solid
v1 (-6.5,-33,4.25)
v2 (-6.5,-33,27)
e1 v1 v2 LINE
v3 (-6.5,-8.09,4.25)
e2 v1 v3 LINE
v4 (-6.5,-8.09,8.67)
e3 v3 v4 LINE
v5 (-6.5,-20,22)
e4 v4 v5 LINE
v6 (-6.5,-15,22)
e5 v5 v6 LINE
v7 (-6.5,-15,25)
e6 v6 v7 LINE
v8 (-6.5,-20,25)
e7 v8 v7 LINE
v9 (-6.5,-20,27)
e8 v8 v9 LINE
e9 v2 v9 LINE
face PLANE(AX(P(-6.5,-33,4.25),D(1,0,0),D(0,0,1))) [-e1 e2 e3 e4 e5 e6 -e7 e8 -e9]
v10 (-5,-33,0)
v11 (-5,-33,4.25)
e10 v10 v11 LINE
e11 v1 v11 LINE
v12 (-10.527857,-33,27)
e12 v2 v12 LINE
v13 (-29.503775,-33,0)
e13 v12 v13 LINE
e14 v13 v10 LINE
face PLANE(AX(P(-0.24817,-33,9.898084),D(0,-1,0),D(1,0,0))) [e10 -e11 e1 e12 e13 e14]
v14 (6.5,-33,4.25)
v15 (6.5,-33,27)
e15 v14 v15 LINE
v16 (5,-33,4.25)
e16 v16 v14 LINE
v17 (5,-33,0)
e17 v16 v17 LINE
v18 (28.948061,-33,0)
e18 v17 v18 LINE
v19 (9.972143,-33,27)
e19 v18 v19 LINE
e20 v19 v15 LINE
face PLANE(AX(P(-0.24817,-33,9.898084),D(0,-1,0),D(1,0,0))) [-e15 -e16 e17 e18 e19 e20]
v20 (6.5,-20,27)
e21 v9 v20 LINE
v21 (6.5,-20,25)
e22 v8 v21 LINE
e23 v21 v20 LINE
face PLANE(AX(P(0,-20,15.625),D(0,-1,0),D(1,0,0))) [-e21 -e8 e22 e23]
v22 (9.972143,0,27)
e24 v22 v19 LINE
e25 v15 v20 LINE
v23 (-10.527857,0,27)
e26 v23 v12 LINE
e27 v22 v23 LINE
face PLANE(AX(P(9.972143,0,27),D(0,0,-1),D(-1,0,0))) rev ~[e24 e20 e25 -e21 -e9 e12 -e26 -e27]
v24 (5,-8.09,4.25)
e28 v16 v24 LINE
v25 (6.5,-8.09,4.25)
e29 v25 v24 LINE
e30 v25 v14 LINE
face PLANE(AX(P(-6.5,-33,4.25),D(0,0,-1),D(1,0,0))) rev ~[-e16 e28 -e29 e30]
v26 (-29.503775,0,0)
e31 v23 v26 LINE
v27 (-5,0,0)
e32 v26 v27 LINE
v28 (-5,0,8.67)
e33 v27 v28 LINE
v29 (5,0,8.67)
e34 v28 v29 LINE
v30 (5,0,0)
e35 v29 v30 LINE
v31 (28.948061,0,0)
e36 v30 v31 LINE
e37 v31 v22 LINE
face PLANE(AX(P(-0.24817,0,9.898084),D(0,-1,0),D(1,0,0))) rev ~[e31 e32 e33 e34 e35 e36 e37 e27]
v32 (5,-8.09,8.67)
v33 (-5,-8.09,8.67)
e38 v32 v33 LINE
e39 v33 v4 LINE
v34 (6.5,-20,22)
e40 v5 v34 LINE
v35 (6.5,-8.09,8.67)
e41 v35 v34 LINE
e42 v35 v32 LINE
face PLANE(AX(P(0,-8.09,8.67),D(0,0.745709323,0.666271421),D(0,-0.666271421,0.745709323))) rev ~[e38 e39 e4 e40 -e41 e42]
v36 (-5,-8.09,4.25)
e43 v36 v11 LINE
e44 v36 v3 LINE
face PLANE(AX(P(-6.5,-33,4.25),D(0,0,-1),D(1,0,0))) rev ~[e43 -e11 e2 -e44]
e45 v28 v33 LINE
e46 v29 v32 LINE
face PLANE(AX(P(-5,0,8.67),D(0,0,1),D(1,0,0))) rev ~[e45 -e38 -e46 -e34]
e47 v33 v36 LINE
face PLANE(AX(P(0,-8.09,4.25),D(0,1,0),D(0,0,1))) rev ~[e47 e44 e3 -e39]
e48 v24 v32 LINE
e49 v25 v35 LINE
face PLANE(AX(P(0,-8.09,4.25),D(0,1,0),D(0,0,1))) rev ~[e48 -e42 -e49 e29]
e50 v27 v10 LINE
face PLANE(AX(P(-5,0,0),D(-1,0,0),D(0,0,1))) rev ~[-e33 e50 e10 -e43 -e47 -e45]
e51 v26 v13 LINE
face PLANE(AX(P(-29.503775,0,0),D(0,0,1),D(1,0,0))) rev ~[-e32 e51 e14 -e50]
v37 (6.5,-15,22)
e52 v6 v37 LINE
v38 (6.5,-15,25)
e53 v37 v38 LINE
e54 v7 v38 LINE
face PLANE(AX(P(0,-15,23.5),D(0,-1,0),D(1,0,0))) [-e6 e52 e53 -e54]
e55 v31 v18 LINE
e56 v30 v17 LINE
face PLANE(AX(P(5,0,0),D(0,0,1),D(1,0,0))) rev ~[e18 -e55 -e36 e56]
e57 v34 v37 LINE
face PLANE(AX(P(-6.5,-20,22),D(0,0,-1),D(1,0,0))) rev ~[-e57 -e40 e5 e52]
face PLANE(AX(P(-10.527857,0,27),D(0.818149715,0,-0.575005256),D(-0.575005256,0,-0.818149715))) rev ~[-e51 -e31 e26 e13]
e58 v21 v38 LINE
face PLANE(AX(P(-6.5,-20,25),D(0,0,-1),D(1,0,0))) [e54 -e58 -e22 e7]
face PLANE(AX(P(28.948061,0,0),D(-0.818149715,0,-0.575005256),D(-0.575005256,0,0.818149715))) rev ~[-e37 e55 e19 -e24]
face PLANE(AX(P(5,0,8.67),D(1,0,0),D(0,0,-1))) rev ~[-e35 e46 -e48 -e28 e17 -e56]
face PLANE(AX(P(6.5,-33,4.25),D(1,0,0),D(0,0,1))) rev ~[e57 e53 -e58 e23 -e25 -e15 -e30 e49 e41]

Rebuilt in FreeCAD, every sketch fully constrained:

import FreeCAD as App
import Part
import Sketcher
Q = App.Units.Quantity

doc = App.newDocument("Part")
params = doc.addObject("Spreadsheet::Sheet", "Params")
for row, (alias, value) in enumerate([
    ("sketch1_width", "10 mm"),
    ("sketch1_width2", "20.5 mm"),
    ("sketch1_height", "8.67 mm"),
    ("pad1_length", "33 mm"),
    ("sketch2_width", "13 mm"),
    ("sketch2_height", "22.75 mm"),
    ("pocket1_length", "13 mm"),
    ("sketch3_width", "13 mm"),
    ("sketch3_height", "3 mm"),
    ("pocket2_length", "5 mm"),
    ("sketch4_width", "11.91 mm"),
    ("sketch4_height", "17.75 mm"),
    ("sketch4_height2", "4.42 mm"),
    ("pocket3_length", "13 mm"),
], start=1):
    params.set(f"A{row}", alias)
    params.set(f"B{row}", "=" + value)
    params.setAlias(f"B{row}", alias)

body = doc.addObject("PartDesign::Body", "Body")

sketch1 = doc.addObject("Sketcher::SketchObject", "Sketch")
body.addObject(sketch1)
sketch1.AttachmentSupport = (doc.XZ_Plane, [""])
sketch1.MapMode = "FlatFace"
sketch1.addGeometry([
    Part.LineSegment(App.Vector(-11, 27, 0), App.Vector(-30, 0, 0)),
    Part.LineSegment(App.Vector(-30, 0, 0), App.Vector(-5, 0, 0)),
    Part.LineSegment(App.Vector(-5, 0, 0), App.Vector(-5, 9, 0)),
    Part.LineSegment(App.Vector(-5, 9, 0), App.Vector(5, 9, 0)),
    Part.LineSegment(App.Vector(5, 9, 0), App.Vector(5, 0, 0)),
    Part.LineSegment(App.Vector(5, 0, 0), App.Vector(29, 0, 0)),
    Part.LineSegment(App.Vector(29, 0, 0), App.Vector(10, 27, 0)),
    Part.LineSegment(App.Vector(10, 27, 0), App.Vector(-11, 27, 0)),
], False)
sketch1.addConstraint([
    Sketcher.Constraint("Coincident", 0, 2, 1, 1),
    Sketcher.Constraint("Coincident", 1, 2, 2, 1),
    Sketcher.Constraint("Coincident", 2, 2, 3, 1),
    Sketcher.Constraint("Coincident", 3, 2, 4, 1),
    Sketcher.Constraint("Coincident", 4, 2, 5, 1),
    Sketcher.Constraint("Coincident", 5, 2, 6, 1),
    Sketcher.Constraint("Coincident", 6, 2, 7, 1),
    Sketcher.Constraint("Coincident", 7, 2, 0, 1),
    Sketcher.Constraint("Horizontal", 1),
    Sketcher.Constraint("Vertical", 2),
    Sketcher.Constraint("Horizontal", 3),
    Sketcher.Constraint("Vertical", 4),
    Sketcher.Constraint("Horizontal", 5),
    Sketcher.Constraint("Horizontal", 7),
    Sketcher.Constraint("Symmetric", 1, 2, 4, 2, -1, 1),
    Sketcher.Constraint("PointOnObject", 0, 2, -1),
    Sketcher.Constraint("Equal", 0, 6),
    Sketcher.Constraint("DistanceX", 3, 1, 3, 2, 10.0),
    Sketcher.Constraint("DistanceX", 7, 2, 7, 1, 20.5),
    Sketcher.Constraint("DistanceY", -1, 1, 6, 2, 27.0),
    Sketcher.Constraint("Angle", 0, Q("-125.1 deg")),
    Sketcher.Constraint("DistanceY", 2, 1, 2, 2, 8.67),
    Sketcher.Constraint("DistanceX", 5, 1, 5, 2, 23.948061),
])
sketch1.setExpression("Constraints[17]", "Params.sketch1_width")
sketch1.setExpression("Constraints[18]", "Params.sketch1_width2")
sketch1.setExpression("Constraints[21]", "Params.sketch1_height")
pad1 = doc.addObject("PartDesign::Pad", "Pad")
body.addObject(pad1)
pad1.Profile = sketch1
pad1.setExpression("Length", "Params.pad1_length")

sketch2 = doc.addObject("Sketcher::SketchObject", "Sketch001")
body.addObject(sketch2)
sketch2.AttachmentSupport = (doc.XZ_Plane, [""])
sketch2.MapMode = "FlatFace"
sketch2.AttachmentOffset = App.Placement(App.Vector(0, 0, 33), App.Rotation())
sketch2.addGeometry([
    Part.LineSegment(App.Vector(-6, 27, 0), App.Vector(-6, 4, 0)),
    Part.LineSegment(App.Vector(-6, 4, 0), App.Vector(6, 4, 0)),
    Part.LineSegment(App.Vector(6, 4, 0), App.Vector(6, 27, 0)),
    Part.LineSegment(App.Vector(6, 27, 0), App.Vector(-6, 27, 0)),
], False)
sketch2.addConstraint([
    Sketcher.Constraint("Coincident", 0, 2, 1, 1),
    Sketcher.Constraint("Coincident", 1, 2, 2, 1),
    Sketcher.Constraint("Coincident", 2, 2, 3, 1),
    Sketcher.Constraint("Coincident", 3, 2, 0, 1),
    Sketcher.Constraint("Vertical", 0),
    Sketcher.Constraint("Horizontal", 1),
    Sketcher.Constraint("Vertical", 2),
    Sketcher.Constraint("Horizontal", 3),
    Sketcher.Constraint("DistanceX", 1, 1, 1, 2, 13.0),
    Sketcher.Constraint("DistanceY", -1, 1, 2, 2, 27.0),
    Sketcher.Constraint("DistanceY", 0, 2, 0, 1, 22.75),
    Sketcher.Constraint("DistanceX", 0, 2, -1, 1, 6.5),
])
sketch2.setExpression("Constraints[8]", "Params.sketch2_width")
sketch2.setExpression("Constraints[10]", "Params.sketch2_height")
pocket1 = doc.addObject("PartDesign::Pocket", "Pocket")
body.addObject(pocket1)
pocket1.Profile = sketch2
pocket1.setExpression("Length", "Params.pocket1_length")

sketch3 = doc.addObject("Sketcher::SketchObject", "Sketch002")
body.addObject(sketch3)
sketch3.AttachmentSupport = (doc.XZ_Plane, [""])
sketch3.MapMode = "FlatFace"
sketch3.AttachmentOffset = App.Placement(App.Vector(0, 0, 20), App.Rotation())
sketch3.addGeometry([
    Part.LineSegment(App.Vector(-6.5, 25, 0), App.Vector(-6.5, 22, 0)),
    Part.LineSegment(App.Vector(-6.5, 22, 0), App.Vector(6.5, 22, 0)),
    Part.LineSegment(App.Vector(6.5, 22, 0), App.Vector(6.5, 25, 0)),
    Part.LineSegment(App.Vector(6.5, 25, 0), App.Vector(-6.5, 25, 0)),
], False)
sketch3.addConstraint([
    Sketcher.Constraint("Coincident", 0, 2, 1, 1),
    Sketcher.Constraint("Coincident", 1, 2, 2, 1),
    Sketcher.Constraint("Coincident", 2, 2, 3, 1),
    Sketcher.Constraint("Coincident", 3, 2, 0, 1),
    Sketcher.Constraint("Vertical", 0),
    Sketcher.Constraint("Horizontal", 1),
    Sketcher.Constraint("Vertical", 2),
    Sketcher.Constraint("Horizontal", 3),
    Sketcher.Constraint("DistanceX", 1, 1, 1, 2, 13.0),
    Sketcher.Constraint("DistanceY", 0, 2, 0, 1, 3.0),
    Sketcher.Constraint("DistanceY", -1, 1, 0, 2, 22.0),
    Sketcher.Constraint("DistanceX", 0, 2, -1, 1, 6.5),
])
sketch3.setExpression("Constraints[8]", "Params.sketch3_width")
sketch3.setExpression("Constraints[9]", "Params.sketch3_height")
pocket2 = doc.addObject("PartDesign::Pocket", "Pocket001")
body.addObject(pocket2)
pocket2.Profile = sketch3
pocket2.setExpression("Length", "Params.pocket2_length")

sketch4 = doc.addObject("Sketcher::SketchObject", "Sketch003")
body.addObject(sketch4)
sketch4.AttachmentSupport = (doc.YZ_Plane, [""])
sketch4.MapMode = "FlatFace"
sketch4.addGeometry([
    Part.LineSegment(App.Vector(-8.1, 8.7, 0), App.Vector(-20, 22, 0)),
    Part.LineSegment(App.Vector(-20, 22, 0), App.Vector(-20, 4.2, 0)),
    Part.LineSegment(App.Vector(-20, 4.2, 0), App.Vector(-8.1, 4.2, 0)),
    Part.LineSegment(App.Vector(-8.1, 4.2, 0), App.Vector(-8.1, 8.7, 0)),
], False)
sketch4.addConstraint([
    Sketcher.Constraint("Coincident", 0, 2, 1, 1),
    Sketcher.Constraint("Coincident", 1, 2, 2, 1),
    Sketcher.Constraint("Coincident", 2, 2, 3, 1),
    Sketcher.Constraint("Coincident", 3, 2, 0, 1),
    Sketcher.Constraint("Vertical", 1),
    Sketcher.Constraint("Horizontal", 2),
    Sketcher.Constraint("Vertical", 3),
    Sketcher.Constraint("DistanceX", 0, 2, -1, 1, 20.0),
    Sketcher.Constraint("DistanceY", -1, 1, 0, 2, 22.0),
    Sketcher.Constraint("DistanceX", 2, 1, 2, 2, 11.91),
    Sketcher.Constraint("DistanceY", 1, 2, 1, 1, 17.75),
    Sketcher.Constraint("DistanceY", 3, 1, 3, 2, 4.42),
])
sketch4.setExpression("Constraints[9]", "Params.sketch4_width")
sketch4.setExpression("Constraints[10]", "Params.sketch4_height")
sketch4.setExpression("Constraints[11]", "Params.sketch4_height2")
pocket3 = doc.addObject("PartDesign::Pocket", "Pocket002")
body.addObject(pocket3)
pocket3.Profile = sketch4
pocket3.setExpression("Length", "Params.pocket3_length")
pocket3.Midplane = True

doc.recompute()
